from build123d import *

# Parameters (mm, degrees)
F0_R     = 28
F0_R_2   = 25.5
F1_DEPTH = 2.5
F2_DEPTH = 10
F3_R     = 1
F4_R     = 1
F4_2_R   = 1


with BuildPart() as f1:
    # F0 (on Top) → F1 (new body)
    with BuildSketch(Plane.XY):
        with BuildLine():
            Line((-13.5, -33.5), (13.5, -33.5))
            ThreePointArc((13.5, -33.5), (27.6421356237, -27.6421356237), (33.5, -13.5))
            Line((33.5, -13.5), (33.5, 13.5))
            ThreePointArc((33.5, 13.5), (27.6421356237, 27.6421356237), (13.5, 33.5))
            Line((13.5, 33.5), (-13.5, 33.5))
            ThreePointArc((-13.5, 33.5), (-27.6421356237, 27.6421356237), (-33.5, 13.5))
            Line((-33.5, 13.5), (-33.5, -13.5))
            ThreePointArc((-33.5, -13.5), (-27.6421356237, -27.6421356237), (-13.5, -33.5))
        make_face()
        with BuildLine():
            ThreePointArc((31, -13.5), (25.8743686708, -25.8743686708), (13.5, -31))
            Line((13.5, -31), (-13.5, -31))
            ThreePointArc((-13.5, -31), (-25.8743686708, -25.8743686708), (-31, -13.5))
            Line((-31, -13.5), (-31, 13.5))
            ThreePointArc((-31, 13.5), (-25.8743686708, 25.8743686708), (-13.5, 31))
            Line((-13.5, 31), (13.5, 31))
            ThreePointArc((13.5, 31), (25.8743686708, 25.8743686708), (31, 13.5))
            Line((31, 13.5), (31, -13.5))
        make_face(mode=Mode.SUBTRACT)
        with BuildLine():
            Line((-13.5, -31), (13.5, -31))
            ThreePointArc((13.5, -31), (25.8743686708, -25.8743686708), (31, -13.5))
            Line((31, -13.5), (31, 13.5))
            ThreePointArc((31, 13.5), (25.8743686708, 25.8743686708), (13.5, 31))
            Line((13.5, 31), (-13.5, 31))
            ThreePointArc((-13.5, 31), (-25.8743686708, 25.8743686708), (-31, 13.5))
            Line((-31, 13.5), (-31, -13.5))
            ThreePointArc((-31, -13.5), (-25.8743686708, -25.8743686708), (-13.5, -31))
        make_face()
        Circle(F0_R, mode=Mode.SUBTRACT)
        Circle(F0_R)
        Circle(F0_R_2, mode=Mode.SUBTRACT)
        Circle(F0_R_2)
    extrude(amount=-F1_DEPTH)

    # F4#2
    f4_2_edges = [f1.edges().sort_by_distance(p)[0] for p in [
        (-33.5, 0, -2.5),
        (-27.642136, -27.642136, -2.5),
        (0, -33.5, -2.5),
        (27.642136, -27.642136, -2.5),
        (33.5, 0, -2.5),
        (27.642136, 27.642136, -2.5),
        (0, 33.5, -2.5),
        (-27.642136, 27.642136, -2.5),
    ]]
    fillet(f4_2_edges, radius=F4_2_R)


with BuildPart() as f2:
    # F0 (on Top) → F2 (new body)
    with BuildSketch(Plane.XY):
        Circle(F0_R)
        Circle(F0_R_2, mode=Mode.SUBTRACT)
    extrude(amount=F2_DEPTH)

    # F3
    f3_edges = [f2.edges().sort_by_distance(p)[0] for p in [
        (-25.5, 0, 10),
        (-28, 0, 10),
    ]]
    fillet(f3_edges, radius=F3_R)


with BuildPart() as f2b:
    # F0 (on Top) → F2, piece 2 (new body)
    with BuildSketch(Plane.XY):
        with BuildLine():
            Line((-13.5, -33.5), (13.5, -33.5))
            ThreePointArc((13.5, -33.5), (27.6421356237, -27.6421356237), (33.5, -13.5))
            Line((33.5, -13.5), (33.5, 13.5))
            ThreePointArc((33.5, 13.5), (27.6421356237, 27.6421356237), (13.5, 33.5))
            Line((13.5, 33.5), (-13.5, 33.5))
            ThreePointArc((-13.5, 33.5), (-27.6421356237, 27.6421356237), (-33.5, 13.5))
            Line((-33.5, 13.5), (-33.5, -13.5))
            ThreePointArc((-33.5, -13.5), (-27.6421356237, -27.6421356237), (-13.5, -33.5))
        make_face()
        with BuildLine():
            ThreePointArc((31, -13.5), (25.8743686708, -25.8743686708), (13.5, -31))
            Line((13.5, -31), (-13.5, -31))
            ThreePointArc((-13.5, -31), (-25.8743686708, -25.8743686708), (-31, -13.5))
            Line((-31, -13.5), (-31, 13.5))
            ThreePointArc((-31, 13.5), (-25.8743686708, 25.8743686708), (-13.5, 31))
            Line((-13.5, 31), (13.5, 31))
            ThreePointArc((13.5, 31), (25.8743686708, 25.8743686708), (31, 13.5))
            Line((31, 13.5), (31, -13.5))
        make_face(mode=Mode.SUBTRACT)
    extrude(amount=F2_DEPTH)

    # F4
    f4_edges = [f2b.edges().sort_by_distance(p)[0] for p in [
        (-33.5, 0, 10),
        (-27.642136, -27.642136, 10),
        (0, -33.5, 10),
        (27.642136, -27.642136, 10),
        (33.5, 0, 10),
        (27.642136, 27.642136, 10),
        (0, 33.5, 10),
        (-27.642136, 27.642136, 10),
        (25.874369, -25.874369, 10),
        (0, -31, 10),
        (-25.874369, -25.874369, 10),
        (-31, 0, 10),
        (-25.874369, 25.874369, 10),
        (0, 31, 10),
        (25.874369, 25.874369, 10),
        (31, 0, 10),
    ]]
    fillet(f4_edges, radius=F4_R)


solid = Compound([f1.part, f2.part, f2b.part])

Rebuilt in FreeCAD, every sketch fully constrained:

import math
import FreeCAD as App
import Part
import Sketcher
from FreeCAD import Vector


def edges_at(feature, points):
    """Names of the edges that pass closest to the given points."""
    edges = feature.Shape.Edges
    near = lambda p: min(range(len(edges)), key=lambda i: edges[i].distToShape(Part.Vertex(*p))[0])
    return sorted({f"Edge{near(p) + 1}" for p in points})

doc = App.newDocument("Part")
body = doc.addObject("PartDesign::Body", "Body")

# Sketch on XY plane
sketch1 = body.newObject("Sketcher::SketchObject", "Sketch")
sketch1.AttachmentSupport = (doc.getObject("XY_Plane"), [""])
sketch1.MapMode = "FlatFace"
sketch1.addGeometry(Part.LineSegment(Vector(-14, -34, 0), Vector(14, -34, 0)), False)
sketch1.addGeometry(Part.ArcOfCircle(Part.Circle(Vector(14, -14, 0), Vector(0, 0, 1), 20), math.radians(-90), math.radians(0)), False)
sketch1.addGeometry(Part.LineSegment(Vector(34, -14, 0), Vector(34, 14, 0)), False)
sketch1.addGeometry(Part.ArcOfCircle(Part.Circle(Vector(14, 14, 0), Vector(0, 0, 1), 20), math.radians(0), math.radians(90)), False)
sketch1.addGeometry(Part.LineSegment(Vector(14, 34, 0), Vector(-14, 34, 0)), False)
sketch1.addGeometry(Part.ArcOfCircle(Part.Circle(Vector(-14, 14, 0), Vector(0, 0, 1), 20), math.radians(90), math.radians(180)), False)
sketch1.addGeometry(Part.LineSegment(Vector(-34, 14, 0), Vector(-34, -14, 0)), False)
sketch1.addGeometry(Part.ArcOfCircle(Part.Circle(Vector(-14, -14, 0), Vector(0, 0, 1), 20), math.radians(180), math.radians(270)), False)
sketch1.addConstraint(Sketcher.Constraint("Tangent", 0, 2, 1, 1))
sketch1.addConstraint(Sketcher.Constraint("Tangent", 1, 2, 2, 1))
sketch1.addConstraint(Sketcher.Constraint("Tangent", 2, 2, 3, 1))
sketch1.addConstraint(Sketcher.Constraint("Tangent", 3, 2, 4, 1))
sketch1.addConstraint(Sketcher.Constraint("Tangent", 4, 2, 5, 1))
sketch1.addConstraint(Sketcher.Constraint("Tangent", 5, 2, 6, 1))
sketch1.addConstraint(Sketcher.Constraint("Tangent", 6, 2, 7, 1))
sketch1.addConstraint(Sketcher.Constraint("Tangent", 7, 2, 0, 1))
sketch1.addConstraint(Sketcher.Constraint("Horizontal", 0))
sketch1.addConstraint(Sketcher.Constraint("Vertical", 2))
sketch1.addConstraint(Sketcher.Constraint("Horizontal", 4))
sketch1.addConstraint(Sketcher.Constraint("Vertical", 6))
sketch1.addConstraint(Sketcher.Constraint("Equal", 1, 3))
sketch1.addConstraint(Sketcher.Constraint("Equal", 3, 5))
sketch1.addConstraint(Sketcher.Constraint("Equal", 5, 7))
sketch1.addConstraint(Sketcher.Constraint("Symmetric", 1, 3, 5, 3, -1, 1))
sketch1.addConstraint(Sketcher.Constraint("Equal", 4, 2))
sketch1.addConstraint(Sketcher.Constraint("Radius", 1, 20.0))
sketch1.addConstraint(Sketcher.Constraint("DistanceX", 0, 1, 0, 2, 27.0))
pad1 = body.newObject("PartDesign::Pad", "Pad")
pad1.Profile = sketch1
pad1.Length = 2.5
pad1.Reversed = True
doc.recompute()

fillet = body.newObject("PartDesign::Fillet", "Fillet")
fillet.Base = (pad1, edges_at(pad1, [
    (-33.5, 0, -2.5),
    (-27.642, -27.642, -2.5),
    (0, -33.5, -2.5),
    (27.642, -27.642, -2.5),
    (33.5, 0, -2.5),
    (27.642, 27.642, -2.5),
    (0, 33.5, -2.5),
    (-27.642, 27.642, -2.5),
]))
fillet.Radius = 1
body2 = doc.addObject("PartDesign::Body", "Body001")

# Sketch on XY plane
sketch2 = body2.newObject("Sketcher::SketchObject", "Sketch001")
sketch2.AttachmentSupport = (doc.getObject("XY_Plane001"), [""])
sketch2.MapMode = "FlatFace"
sketch2.addGeometry(Part.Circle(Vector(0, 0, 0), Vector(0, 0, 1), 28), False)
sketch2.addGeometry(Part.Circle(Vector(0, 0, 0), Vector(0, 0, 1), 26), False)
sketch2.addConstraint(Sketcher.Constraint("Coincident", 0, 3, -1, 1))
sketch2.addConstraint(Sketcher.Constraint("Coincident", 1, 3, -1, 1))
sketch2.addConstraint(Sketcher.Constraint("Diameter", 0, 56.0))
sketch2.addConstraint(Sketcher.Constraint("Diameter", 1, 51.0))
pad2 = body2.newObject("PartDesign::Pad", "Pad001")
pad2.Profile = sketch2
pad2.Length = 10
doc.recompute()

fillet2 = body2.newObject("PartDesign::Fillet", "Fillet001")
fillet2.Base = (pad2, edges_at(pad2, [(-25.5, 0, 10), (-28, 0, 10)]))
fillet2.Radius = 1
body3 = doc.addObject("PartDesign::Body", "Body002")

# Sketch on XY plane
sketch3 = body3.newObject("Sketcher::SketchObject", "Sketch002")
sketch3.AttachmentSupport = (doc.getObject("XY_Plane002"), [""])
sketch3.MapMode = "FlatFace"
sketch3.addGeometry(Part.LineSegment(Vector(-14, -34, 0), Vector(14, -34, 0)), False)
sketch3.addGeometry(Part.ArcOfCircle(Part.Circle(Vector(14, -14, 0), Vector(0, 0, 1), 20), math.radians(-90), math.radians(0)), False)
sketch3.addGeometry(Part.LineSegment(Vector(34, -14, 0), Vector(34, 14, 0)), False)
sketch3.addGeometry(Part.ArcOfCircle(Part.Circle(Vector(14, 14, 0), Vector(0, 0, 1), 20), math.radians(0), math.radians(90)), False)
sketch3.addGeometry(Part.LineSegment(Vector(14, 34, 0), Vector(-14, 34, 0)), False)
sketch3.addGeometry(Part.ArcOfCircle(Part.Circle(Vector(-14, 14, 0), Vector(0, 0, 1), 20), math.radians(90), math.radians(180)), False)
sketch3.addGeometry(Part.LineSegment(Vector(-34, 14, 0), Vector(-34, -14, 0)), False)
sketch3.addGeometry(Part.ArcOfCircle(Part.Circle(Vector(-14, -14, 0), Vector(0, 0, 1), 20), math.radians(180), math.radians(270)), False)
sketch3.addGeometry(Part.LineSegment(Vector(31, 14, 0), Vector(31, -14, 0)), False)
sketch3.addGeometry(Part.ArcOfCircle(Part.Circle(Vector(14, -14, 0), Vector(0, 0, 1), 18), math.radians(-90), math.radians(0)), False)
sketch3.addGeometry(Part.LineSegment(Vector(14, -31, 0), Vector(-14, -31, 0)), False)
sketch3.addGeometry(Part.ArcOfCircle(Part.Circle(Vector(-14, -14, 0), Vector(0, 0, 1), 18), math.radians(180), math.radians(270)), False)
sketch3.addGeometry(Part.LineSegment(Vector(-31, -14, 0), Vector(-31, 14, 0)), False)
sketch3.addGeometry(Part.ArcOfCircle(Part.Circle(Vector(-14, 14, 0), Vector(0, 0, 1), 18), math.radians(90), math.radians(180)), False)
sketch3.addGeometry(Part.LineSegment(Vector(-14, 31, 0), Vector(14, 31, 0)), False)
sketch3.addGeometry(Part.ArcOfCircle(Part.Circle(Vector(14, 14, 0), Vector(0, 0, 1), 18), math.radians(0), math.radians(90)), False)
sketch3.addConstraint(Sketcher.Constraint("Tangent", 0, 2, 1, 1))
sketch3.addConstraint(Sketcher.Constraint("Tangent", 1, 2, 2, 1))
sketch3.addConstraint(Sketcher.Constraint("Tangent", 2, 2, 3, 1))
sketch3.addConstraint(Sketcher.Constraint("Tangent", 3, 2, 4, 1))
sketch3.addConstraint(Sketcher.Constraint("Tangent", 4, 2, 5, 1))
sketch3.addConstraint(Sketcher.Constraint("Tangent", 5, 2, 6, 1))
sketch3.addConstraint(Sketcher.Constraint("Tangent", 6, 2, 7, 1))
sketch3.addConstraint(Sketcher.Constraint("Tangent", 7, 2, 0, 1))
sketch3.addConstraint(Sketcher.Constraint("Tangent", 8, 2, 9, 2))
sketch3.addConstraint(Sketcher.Constraint("Tangent", 9, 1, 10, 1))
sketch3.addConstraint(Sketcher.Constraint("Tangent", 10, 2, 11, 2))
sketch3.addConstraint(Sketcher.Constraint("Tangent", 11, 1, 12, 1))
sketch3.addConstraint(Sketcher.Constraint("Tangent", 12, 2, 13, 2))
sketch3.addConstraint(Sketcher.Constraint("Tangent", 13, 1, 14, 1))
sketch3.addConstraint(Sketcher.Constraint("Tangent", 14, 2, 15, 2))
sketch3.addConstraint(Sketcher.Constraint("Tangent", 15, 1, 8, 1))
sketch3.addConstraint(Sketcher.Constraint("Horizontal", 0))
sketch3.addConstraint(Sketcher.Constraint("Vertical", 2))
sketch3.addConstraint(Sketcher.Constraint("Horizontal", 4))
sketch3.addConstraint(Sketcher.Constraint("Vertical", 6))
sketch3.addConstraint(Sketcher.Constraint("Vertical", 8))
sketch3.addConstraint(Sketcher.Constraint("Horizontal", 10))
sketch3.addConstraint(Sketcher.Constraint("Vertical", 12))
sketch3.addConstraint(Sketcher.Constraint("Horizontal", 14))
sketch3.addConstraint(Sketcher.Constraint("Coincident", 9, 3, 1, 3))
sketch3.addConstraint(Sketcher.Constraint("Coincident", 11, 3, 7, 3))
sketch3.addConstraint(Sketcher.Constraint("Coincident", 13, 3, 5, 3))
sketch3.addConstraint(Sketcher.Constraint("Equal", 1, 3))
sketch3.addConstraint(Sketcher.Constraint("Equal", 3, 5))
sketch3.addConstraint(Sketcher.Constraint("Equal", 5, 7))
sketch3.addConstraint(Sketcher.Constraint("Equal", 13, 15))
sketch3.addConstraint(Sketcher.Constraint("Symmetric", 1, 3, 5, 3, -1, 1))
sketch3.addConstraint(Sketcher.Constraint("Equal", 14, 2))
sketch3.addConstraint(Sketcher.Constraint("Radius", 1, 20.0))
sketch3.addConstraint(Sketcher.Constraint("Radius", 9, 17.5))
sketch3.addConstraint(Sketcher.Constraint("DistanceX", 0, 1, 0, 2, 27.0))
pad3 = body3.newObject("PartDesign::Pad", "Pad002")
pad3.Profile = sketch3
pad3.Length = 10
doc.recompute()

fillet3 = body3.newObject("PartDesign::Fillet", "Fillet002")
fillet3.Base = (pad3, edges_at(pad3, [
    (-33.5, 0, 10),
    (-27.642, -27.642, 10),
    (0, -33.5, 10),
    (27.642, -27.642, 10),
    (33.5, 0, 10),
    (27.642, 27.642, 10),
    (0, 33.5, 10),
    (-27.642, 27.642, 10),
    (25.874, -25.874, 10),
    (0, -31, 10),
    (-25.874, -25.874, 10),
    (-31, 0, 10),
    (-25.874, 25.874, 10),
    (0, 31, 10),
    (25.874, 25.874, 10),
    (31, 0, 10),
]))
fillet3.Radius = 1

doc.recompute()
